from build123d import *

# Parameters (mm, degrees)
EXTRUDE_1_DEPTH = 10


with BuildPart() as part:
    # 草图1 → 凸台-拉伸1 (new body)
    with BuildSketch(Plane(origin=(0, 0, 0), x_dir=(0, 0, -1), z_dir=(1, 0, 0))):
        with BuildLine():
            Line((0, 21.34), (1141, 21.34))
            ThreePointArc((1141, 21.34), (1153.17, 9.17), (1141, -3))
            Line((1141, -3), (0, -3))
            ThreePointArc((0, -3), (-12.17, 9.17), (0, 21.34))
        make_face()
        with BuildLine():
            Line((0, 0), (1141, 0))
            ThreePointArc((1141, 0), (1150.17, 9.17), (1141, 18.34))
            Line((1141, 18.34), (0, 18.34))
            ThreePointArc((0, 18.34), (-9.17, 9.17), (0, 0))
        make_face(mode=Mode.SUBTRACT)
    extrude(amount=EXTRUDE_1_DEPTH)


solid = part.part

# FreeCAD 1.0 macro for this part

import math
import FreeCAD as App
import Part
import Sketcher

V = App.Vector
Q = App.Units.Quantity

doc = App.newDocument("Part")
body = doc.addObject("PartDesign::Body", "Body")

# Sketch on YZ plane
sketch1 = body.newObject("Sketcher::SketchObject", "Sketch")
sketch1.AttachmentSupport = (doc.getObject("YZ_Plane"), [""])
sketch1.MapMode = "FlatFace"
sketch1.addGeometry([
    Part.LineSegment(V(21, -1141, 0), V(21, 0, 0)),  # 0
    Part.ArcOfCircle(Part.Circle(V(9, 0, 0), V(0, 0, 1), 12), math.radians(0), math.radians(180)),  # 1
    Part.LineSegment(V(-3, 0, 0), V(-3, -1141, 0)),  # 2
    Part.ArcOfCircle(Part.Circle(V(9, -1141, 0), V(0, 0, 1), 12), math.radians(180), math.radians(360)),  # 3
    Part.ArcOfCircle(Part.Circle(V(9, 0, 0), V(0, 0, 1), 9), math.radians(0), math.radians(180)),  # 4
    Part.LineSegment(V(18, 0, 0), V(18, -1141, 0)),  # 5
    Part.ArcOfCircle(Part.Circle(V(9, -1141, 0), V(0, 0, 1), 9), math.radians(180), math.radians(360)),  # 6
    Part.LineSegment(V(0, -1141, 0), V(0, 0, 0)),  # 7
], False)
sketch1.addConstraint([
    Sketcher.Constraint("Tangent", 0, 2, 1, 1),
    Sketcher.Constraint("Tangent", 1, 2, 2, 1),
    Sketcher.Constraint("Tangent", 2, 2, 3, 1),
    Sketcher.Constraint("Tangent", 3, 2, 0, 1),
    Sketcher.Constraint("Tangent", 4, 1, 5, 1),
    Sketcher.Constraint("Tangent", 5, 2, 6, 2),
    Sketcher.Constraint("Tangent", 6, 1, 7, 1),
    Sketcher.Constraint("Tangent", 7, 2, 4, 2),
    Sketcher.Constraint("Vertical", 0),
    Sketcher.Constraint("Vertical", 2),
    Sketcher.Constraint("Vertical", 5),
    Sketcher.Constraint("Vertical", 7),
    Sketcher.Constraint("Coincident", 7, 2, -1, 1),
    Sketcher.Constraint("Coincident", 4, 3, 1, 3),
    Sketcher.Constraint("Horizontal", 6, 3, 2, 2),
    Sketcher.Constraint("DistanceY", 0, 1, 0, 2, Q("1141 mm")),
    Sketcher.Constraint("Radius", 1, Q("12.17 mm")),
    Sketcher.Constraint("Radius", 4, Q("9.17 mm")),
])
pad1 = body.newObject("PartDesign::Pad", "Pad")
pad1.Profile = sketch1
pad1.Length = 10

doc.recompute()
